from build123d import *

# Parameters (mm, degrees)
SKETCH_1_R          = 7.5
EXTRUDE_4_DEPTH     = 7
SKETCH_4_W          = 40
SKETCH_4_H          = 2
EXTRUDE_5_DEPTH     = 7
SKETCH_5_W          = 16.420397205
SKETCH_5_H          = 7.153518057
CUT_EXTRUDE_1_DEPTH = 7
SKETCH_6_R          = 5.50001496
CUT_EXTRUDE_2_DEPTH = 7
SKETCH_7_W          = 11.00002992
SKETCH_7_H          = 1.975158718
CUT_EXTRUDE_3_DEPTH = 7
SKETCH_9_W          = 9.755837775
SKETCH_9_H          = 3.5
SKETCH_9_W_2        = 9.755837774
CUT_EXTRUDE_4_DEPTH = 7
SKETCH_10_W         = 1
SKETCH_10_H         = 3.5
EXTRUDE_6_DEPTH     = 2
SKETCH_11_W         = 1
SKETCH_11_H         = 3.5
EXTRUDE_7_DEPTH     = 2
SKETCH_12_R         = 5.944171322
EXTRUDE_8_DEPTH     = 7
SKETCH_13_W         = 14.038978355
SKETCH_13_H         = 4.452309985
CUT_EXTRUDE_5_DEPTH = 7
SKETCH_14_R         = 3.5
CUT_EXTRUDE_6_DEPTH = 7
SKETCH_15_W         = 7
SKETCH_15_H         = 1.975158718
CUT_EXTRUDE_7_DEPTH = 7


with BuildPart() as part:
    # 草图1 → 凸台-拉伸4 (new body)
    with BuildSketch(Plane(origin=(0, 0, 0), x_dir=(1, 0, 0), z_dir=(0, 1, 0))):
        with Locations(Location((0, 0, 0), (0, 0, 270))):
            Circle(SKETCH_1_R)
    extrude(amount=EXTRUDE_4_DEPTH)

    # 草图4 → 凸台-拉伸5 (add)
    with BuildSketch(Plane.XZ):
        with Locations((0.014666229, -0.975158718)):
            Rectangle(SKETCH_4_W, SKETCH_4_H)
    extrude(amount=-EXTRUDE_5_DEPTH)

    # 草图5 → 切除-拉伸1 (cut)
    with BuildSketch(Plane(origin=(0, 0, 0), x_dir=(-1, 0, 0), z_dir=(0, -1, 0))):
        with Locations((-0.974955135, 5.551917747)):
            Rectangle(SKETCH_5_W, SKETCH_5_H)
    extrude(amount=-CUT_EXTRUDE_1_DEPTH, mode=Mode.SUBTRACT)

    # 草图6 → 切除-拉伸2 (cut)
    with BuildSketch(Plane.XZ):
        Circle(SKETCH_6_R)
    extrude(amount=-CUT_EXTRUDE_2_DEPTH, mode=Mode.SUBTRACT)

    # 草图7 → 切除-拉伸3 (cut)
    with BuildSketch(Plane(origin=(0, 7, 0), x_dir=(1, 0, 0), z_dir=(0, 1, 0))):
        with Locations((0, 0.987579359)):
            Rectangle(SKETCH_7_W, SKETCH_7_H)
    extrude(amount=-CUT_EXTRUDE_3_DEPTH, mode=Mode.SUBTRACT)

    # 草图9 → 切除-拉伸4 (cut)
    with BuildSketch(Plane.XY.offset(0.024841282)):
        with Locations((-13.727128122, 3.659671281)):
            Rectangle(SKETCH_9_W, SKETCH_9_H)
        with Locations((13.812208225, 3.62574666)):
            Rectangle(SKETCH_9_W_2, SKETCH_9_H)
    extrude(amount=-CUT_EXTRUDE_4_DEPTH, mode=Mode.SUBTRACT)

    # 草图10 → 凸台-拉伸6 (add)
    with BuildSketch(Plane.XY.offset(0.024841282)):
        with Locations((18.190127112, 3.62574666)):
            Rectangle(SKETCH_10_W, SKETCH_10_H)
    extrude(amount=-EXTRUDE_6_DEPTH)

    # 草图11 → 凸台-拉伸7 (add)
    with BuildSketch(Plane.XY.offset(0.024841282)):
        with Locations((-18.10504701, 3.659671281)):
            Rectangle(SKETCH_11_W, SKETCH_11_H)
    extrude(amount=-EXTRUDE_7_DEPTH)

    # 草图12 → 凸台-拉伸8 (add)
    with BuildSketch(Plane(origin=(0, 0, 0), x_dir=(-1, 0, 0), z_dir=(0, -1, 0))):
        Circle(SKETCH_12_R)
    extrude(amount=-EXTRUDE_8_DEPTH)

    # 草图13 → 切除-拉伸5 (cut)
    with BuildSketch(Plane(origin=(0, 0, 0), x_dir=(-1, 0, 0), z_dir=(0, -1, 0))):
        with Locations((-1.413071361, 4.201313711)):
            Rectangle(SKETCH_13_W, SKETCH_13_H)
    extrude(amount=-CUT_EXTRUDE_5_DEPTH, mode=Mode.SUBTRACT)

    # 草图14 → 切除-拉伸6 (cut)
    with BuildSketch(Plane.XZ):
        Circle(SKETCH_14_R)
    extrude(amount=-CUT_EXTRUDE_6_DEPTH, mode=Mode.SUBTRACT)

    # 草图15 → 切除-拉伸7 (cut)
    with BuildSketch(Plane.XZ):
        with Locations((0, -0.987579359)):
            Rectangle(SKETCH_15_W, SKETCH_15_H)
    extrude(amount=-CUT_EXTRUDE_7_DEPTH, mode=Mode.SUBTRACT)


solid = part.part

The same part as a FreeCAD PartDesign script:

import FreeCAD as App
import Part
import Sketcher
Q = App.Units.Quantity


def add_polygon(sketch, points):
    """Adds a closed chain of lines whose ends are joined by coincident constraints."""
    first, n = sketch.GeometryCount, len(points)
    for a, b in zip(points, points[1:] + points[:1]):
        sketch.addGeometry(Part.LineSegment(App.Vector(*a, 0), App.Vector(*b, 0)), False)
    for i in range(n):
        sketch.addConstraint(Sketcher.Constraint("Coincident", first + i, 2, first + (i + 1) % n, 1))

doc = App.newDocument("Part")
params = doc.addObject("Spreadsheet::Sheet", "Params")
for row, (alias, value) in enumerate([
    ("sketch1_diameter", "15 mm"),
    ("pad1_length", "7 mm"),
    ("sketch2_width", "40 mm"),
    ("sketch2_height", "2 mm"),
    ("pad2_length", "7 mm"),
    ("pocket1_length", "7 mm"),
    ("pocket2_length", "7 mm"),
    ("pocket3_length", "7 mm"),
    ("sketch6_height", "3.5 mm"),
    ("pocket4_length", "7 mm"),
    ("sketch7_width", "1 mm"),
    ("sketch7_height", "3.5 mm"),
    ("pad3_length", "2 mm"),
    ("sketch8_width", "1 mm"),
    ("sketch8_height", "3.5 mm"),
    ("pad4_length", "2 mm"),
    ("pad5_length", "7 mm"),
    ("pocket5_length", "7 mm"),
    ("sketch11_diameter", "7 mm"),
    ("pocket6_length", "7 mm"),
    ("sketch12_width", "7 mm"),
    ("pocket7_length", "7 mm"),
], start=1):
    params.set(f"A{row}", alias)
    params.set(f"B{row}", "=" + value)
    params.setAlias(f"B{row}", alias)

body = doc.addObject("PartDesign::Body", "Body")

sketch1 = body.newObject("Sketcher::SketchObject", "Sketch")
sketch1.AttachmentSupport = (doc.getObject("XZ_Plane"), [""])
sketch1.MapMode = "FlatFace"
sketch1.addGeometry(Part.Circle(App.Vector(0, 0, 0), App.Vector(0, 0, 1), 8), False)
sketch1.addConstraint([
    Sketcher.Constraint("Coincident", 0, 3, -1, 1),
    Sketcher.Constraint("Diameter", 0, Q("15 mm")),
])
sketch1.setExpression("Constraints[1]", "Params.sketch1_diameter")
pad1 = body.newObject("PartDesign::Pad", "Pad")
pad1.Profile = sketch1
pad1.setExpression("Length", "Params.pad1_length")
pad1.Reversed = True

sketch2 = body.newObject("Sketcher::SketchObject", "Sketch001")
sketch2.AttachmentSupport = (doc.getObject("XZ_Plane"), [""])
sketch2.MapMode = "FlatFace"
add_polygon(sketch2, [(-20, 0), (-20, -2), (20, -2), (20, 0)])
sketch2.addConstraint([
    Sketcher.Constraint("Vertical", 0),
    Sketcher.Constraint("Horizontal", 1),
    Sketcher.Constraint("Vertical", 2),
    Sketcher.Constraint("Horizontal", 3),
    Sketcher.Constraint("DistanceX", 1, 1, 1, 2, Q("40 mm")),
    Sketcher.Constraint("DistanceY", 0, 2, 0, 1, Q("2 mm")),
    Sketcher.Constraint("DistanceY", 0, 2, -1, 1, Q("1.975159 mm")),
    Sketcher.Constraint("DistanceX", 0, 2, -1, 1, Q("19.985334 mm")),
])
sketch2.setExpression("Constraints[8]", "Params.sketch2_width")
sketch2.setExpression("Constraints[9]", "Params.sketch2_height")
pad2 = body.newObject("PartDesign::Pad", "Pad001")
pad2.Profile = sketch2
pad2.setExpression("Length", "Params.pad2_length")
pad2.Reversed = True

sketch3 = body.newObject("Sketcher::SketchObject", "Sketch002")
sketch3.AttachmentSupport = (doc.getObject("XZ_Plane"), [""])
sketch3.MapMode = "FlatFace"
add_polygon(sketch3, [(9, -9), (9, -2), (-7, -2), (-7, -9)])
sketch3.addConstraint([
    Sketcher.Constraint("Vertical", 0),
    Sketcher.Constraint("Horizontal", 1),
    Sketcher.Constraint("Vertical", 2),
    Sketcher.Constraint("Horizontal", 3),
    Sketcher.Constraint("DistanceY", 0, 1, 0, 2, Q("7.153518 mm")),
    Sketcher.Constraint("DistanceX", 1, 2, 1, 1, Q("16.420397 mm")),
    Sketcher.Constraint("DistanceY", 0, 2, -1, 1, Q("1.975159 mm")),
    Sketcher.Constraint("DistanceX", -1, 1, 0, 2, Q("9.185154 mm")),
])
pocket1 = body.newObject("PartDesign::Pocket", "Pocket")
pocket1.Profile = sketch3
pocket1.setExpression("Length", "Params.pocket1_length")

sketch4 = body.newObject("Sketcher::SketchObject", "Sketch003")
sketch4.AttachmentSupport = (doc.getObject("XZ_Plane"), [""])
sketch4.MapMode = "FlatFace"
sketch4.addGeometry(Part.Circle(App.Vector(0, 0, 0), App.Vector(0, 0, 1), 6), False)
sketch4.addConstraint([
    Sketcher.Constraint("Coincident", 0, 3, -1, 1),
    Sketcher.Constraint("Diameter", 0, Q("11.00003 mm")),
])
pocket2 = body.newObject("PartDesign::Pocket", "Pocket001")
pocket2.Profile = sketch4
pocket2.setExpression("Length", "Params.pocket2_length")

sketch5 = body.newObject("Sketcher::SketchObject", "Sketch004")
sketch5.AttachmentSupport = (doc.getObject("XZ_Plane"), [""])
sketch5.MapMode = "FlatFace"
sketch5.AttachmentOffset = App.Placement(App.Vector(0, 0, -7), App.Rotation())
add_polygon(sketch5, [(-5.5, -2), (-5.5, 0), (5.5, 0), (5.5, -2)])
sketch5.addConstraint([
    Sketcher.Constraint("Vertical", 0),
    Sketcher.Constraint("Horizontal", 1),
    Sketcher.Constraint("Vertical", 2),
    Sketcher.Constraint("Horizontal", 3),
    Sketcher.Constraint("Symmetric", 0, 2, 1, 2, -1, 1),
    Sketcher.Constraint("DistanceX", 1, 1, 1, 2, Q("11.00003 mm")),
    Sketcher.Constraint("DistanceY", 0, 1, 0, 2, Q("1.975159 mm")),
])
pocket3 = body.newObject("PartDesign::Pocket", "Pocket002")
pocket3.Profile = sketch5
pocket3.setExpression("Length", "Params.pocket3_length")
pocket3.Reversed = True

sketch6 = body.newObject("Sketcher::SketchObject", "Sketch005")
sketch6.AttachmentSupport = (doc.getObject("XY_Plane"), [""])
sketch6.MapMode = "FlatFace"
sketch6.AttachmentOffset = App.Placement(App.Vector(0, 0, 0.024841), App.Rotation())
add_polygon(sketch6, [(-18.6, 5.4), (-18.6, 1.9), (-8.8, 1.9), (-8.8, 5.4)])
add_polygon(sketch6, [(8.9, 5.4), (8.9, 1.9), (18.7, 1.9), (18.7, 5.4)])
sketch6.addConstraint([
    Sketcher.Constraint("Vertical", 0),
    Sketcher.Constraint("Horizontal", 1),
    Sketcher.Constraint("Vertical", 2),
    Sketcher.Constraint("Horizontal", 3),
    Sketcher.Constraint("Vertical", 4),
    Sketcher.Constraint("Horizontal", 5),
    Sketcher.Constraint("Vertical", 6),
    Sketcher.Constraint("Horizontal", 7),
    Sketcher.Constraint("Equal", 3, 5),
    Sketcher.Constraint("Equal", 2, 4),
    Sketcher.Constraint("DistanceY", 0, 2, 0, 1, Q("3.5 mm")),
    Sketcher.Constraint("DistanceX", 1, 2, 4, 2, Q("17.783499 mm")),
    Sketcher.Constraint("DistanceX", 1, 1, 1, 2, Q("9.755838 mm")),
    Sketcher.Constraint("DistanceY", -1, 1, 0, 2, Q("1.909671 mm")),
    Sketcher.Constraint("DistanceX", 1, 2, -1, 1, Q("8.849209 mm")),
    Sketcher.Constraint("DistanceY", -1, 1, 4, 2, Q("1.875747 mm")),
])
sketch6.setExpression("Constraints[18]", "Params.sketch6_height")
pocket4 = body.newObject("PartDesign::Pocket", "Pocket003")
pocket4.Profile = sketch6
pocket4.setExpression("Length", "Params.pocket4_length")

sketch7 = body.newObject("Sketcher::SketchObject", "Sketch006")
sketch7.AttachmentSupport = (doc.getObject("XY_Plane"), [""])
sketch7.MapMode = "FlatFace"
sketch7.AttachmentOffset = App.Placement(App.Vector(0, 0, 0.024841), App.Rotation())
add_polygon(sketch7, [(17.7, 5.4), (17.7, 1.9), (18.7, 1.9), (18.7, 5.4)])
sketch7.addConstraint([
    Sketcher.Constraint("Vertical", 0),
    Sketcher.Constraint("Horizontal", 1),
    Sketcher.Constraint("Vertical", 2),
    Sketcher.Constraint("Horizontal", 3),
    Sketcher.Constraint("DistanceX", 1, 1, 1, 2, Q("1 mm")),
    Sketcher.Constraint("DistanceY", 0, 2, 0, 1, Q("3.5 mm")),
    Sketcher.Constraint("DistanceX", -1, 1, 0, 2, Q("17.690127 mm")),
    Sketcher.Constraint("DistanceY", -1, 1, 0, 2, Q("1.875747 mm")),
])
sketch7.setExpression("Constraints[8]", "Params.sketch7_width")
sketch7.setExpression("Constraints[9]", "Params.sketch7_height")
pad3 = body.newObject("PartDesign::Pad", "Pad002")
pad3.Profile = sketch7
pad3.setExpression("Length", "Params.pad3_length")
pad3.Reversed = True

sketch8 = body.newObject("Sketcher::SketchObject", "Sketch007")
sketch8.AttachmentSupport = (doc.getObject("XY_Plane"), [""])
sketch8.MapMode = "FlatFace"
sketch8.AttachmentOffset = App.Placement(App.Vector(0, 0, 0.024841), App.Rotation())
add_polygon(sketch8, [(-18.6, 5.4), (-18.6, 1.9), (-17.6, 1.9), (-17.6, 5.4)])
sketch8.addConstraint([
    Sketcher.Constraint("Vertical", 0),
    Sketcher.Constraint("Horizontal", 1),
    Sketcher.Constraint("Vertical", 2),
    Sketcher.Constraint("Horizontal", 3),
    Sketcher.Constraint("DistanceX", 1, 1, 1, 2, Q("1 mm")),
    Sketcher.Constraint("DistanceY", 0, 2, 0, 1, Q("3.5 mm")),
    Sketcher.Constraint("DistanceY", -1, 1, 0, 2, Q("1.909671 mm")),
    Sketcher.Constraint("DistanceX", 0, 2, -1, 1, Q("18.605047 mm")),
])
sketch8.setExpression("Constraints[8]", "Params.sketch8_width")
sketch8.setExpression("Constraints[9]", "Params.sketch8_height")
pad4 = body.newObject("PartDesign::Pad", "Pad003")
pad4.Profile = sketch8
pad4.setExpression("Length", "Params.pad4_length")
pad4.Reversed = True

sketch9 = body.newObject("Sketcher::SketchObject", "Sketch008")
sketch9.AttachmentSupport = (doc.getObject("XZ_Plane"), [""])
sketch9.MapMode = "FlatFace"
sketch9.addGeometry(Part.Circle(App.Vector(0, 0, 0), App.Vector(0, 0, 1), 6), False)
sketch9.addConstraint([
    Sketcher.Constraint("Coincident", 0, 3, -1, 1),
    Sketcher.Constraint("Diameter", 0, Q("11.888343 mm")),
])
pad5 = body.newObject("PartDesign::Pad", "Pad004")
pad5.Profile = sketch9
pad5.setExpression("Length", "Params.pad5_length")
pad5.Reversed = True

sketch10 = body.newObject("Sketcher::SketchObject", "Sketch009")
sketch10.AttachmentSupport = (doc.getObject("XZ_Plane"), [""])
sketch10.MapMode = "FlatFace"
add_polygon(sketch10, [(8.4, -6.4), (8.4, -2), (-5.6, -2), (-5.6, -6.4)])
sketch10.addConstraint([
    Sketcher.Constraint("Vertical", 0),
    Sketcher.Constraint("Horizontal", 1),
    Sketcher.Constraint("Vertical", 2),
    Sketcher.Constraint("Horizontal", 3),
    Sketcher.Constraint("DistanceX", 1, 2, 1, 1, Q("14.038978 mm")),
    Sketcher.Constraint("DistanceY", 0, 1, 0, 2, Q("4.45231 mm")),
    Sketcher.Constraint("DistanceX", -1, 1, 0, 2, Q("8.432561 mm")),
    Sketcher.Constraint("DistanceY", 0, 2, -1, 1, Q("1.975159 mm")),
])
pocket5 = body.newObject("PartDesign::Pocket", "Pocket004")
pocket5.Profile = sketch10
pocket5.setExpression("Length", "Params.pocket5_length")

sketch11 = body.newObject("Sketcher::SketchObject", "Sketch010")
sketch11.AttachmentSupport = (doc.getObject("XZ_Plane"), [""])
sketch11.MapMode = "FlatFace"
sketch11.addGeometry(Part.Circle(App.Vector(0, 0, 0), App.Vector(0, 0, 1), 3.5), False)
sketch11.addConstraint([
    Sketcher.Constraint("Coincident", 0, 3, -1, 1),
    Sketcher.Constraint("Diameter", 0, Q("7 mm")),
])
sketch11.setExpression("Constraints[1]", "Params.sketch11_diameter")
pocket6 = body.newObject("PartDesign::Pocket", "Pocket005")
pocket6.Profile = sketch11
pocket6.setExpression("Length", "Params.pocket6_length")

sketch12 = body.newObject("Sketcher::SketchObject", "Sketch011")
sketch12.AttachmentSupport = (doc.getObject("XZ_Plane"), [""])
sketch12.MapMode = "FlatFace"
add_polygon(sketch12, [(-3.5, 0), (-3.5, -2), (3.5, -2), (3.5, 0)])
sketch12.addConstraint([
    Sketcher.Constraint("Vertical", 0),
    Sketcher.Constraint("Horizontal", 1),
    Sketcher.Constraint("Vertical", 2),
    Sketcher.Constraint("Horizontal", 3),
    Sketcher.Constraint("Symmetric", 2, 2, 3, 2, -1, 1),
    Sketcher.Constraint("DistanceX", 1, 1, 1, 2, Q("7 mm")),
    Sketcher.Constraint("DistanceY", 0, 2, 0, 1, Q("1.975159 mm")),
])
sketch12.setExpression("Constraints[9]", "Params.sketch12_width")
pocket7 = body.newObject("PartDesign::Pocket", "Pocket006")
pocket7.Profile = sketch12
pocket7.setExpression("Length", "Params.pocket7_length")

doc.recompute()
